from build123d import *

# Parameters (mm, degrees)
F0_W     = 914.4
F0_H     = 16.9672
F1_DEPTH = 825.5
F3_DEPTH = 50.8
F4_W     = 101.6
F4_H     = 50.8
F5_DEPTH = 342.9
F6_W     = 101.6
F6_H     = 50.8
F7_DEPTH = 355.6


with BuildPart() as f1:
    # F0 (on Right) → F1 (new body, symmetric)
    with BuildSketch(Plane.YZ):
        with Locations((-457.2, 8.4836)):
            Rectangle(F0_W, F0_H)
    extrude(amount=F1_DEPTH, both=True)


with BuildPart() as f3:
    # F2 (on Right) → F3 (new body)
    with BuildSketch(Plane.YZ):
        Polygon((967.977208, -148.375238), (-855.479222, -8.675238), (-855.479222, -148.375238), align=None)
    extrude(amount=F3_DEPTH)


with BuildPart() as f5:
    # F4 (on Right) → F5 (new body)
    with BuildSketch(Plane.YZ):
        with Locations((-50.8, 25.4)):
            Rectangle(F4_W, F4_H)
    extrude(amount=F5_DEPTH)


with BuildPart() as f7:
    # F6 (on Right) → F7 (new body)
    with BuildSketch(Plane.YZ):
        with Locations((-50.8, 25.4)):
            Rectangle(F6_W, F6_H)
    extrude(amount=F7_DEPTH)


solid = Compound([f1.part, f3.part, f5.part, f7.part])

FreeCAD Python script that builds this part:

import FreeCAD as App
import Part
import Sketcher
Q = App.Units.Quantity


def add_polygon(sketch, points):
    """Adds a closed chain of lines whose ends are joined by coincident constraints."""
    first, n = sketch.GeometryCount, len(points)
    for a, b in zip(points, points[1:] + points[:1]):
        sketch.addGeometry(Part.LineSegment(App.Vector(*a, 0), App.Vector(*b, 0)), False)
    for i in range(n):
        sketch.addConstraint(Sketcher.Constraint("Coincident", first + i, 2, first + (i + 1) % n, 1))

doc = App.newDocument("Part")
body = doc.addObject("PartDesign::Body", "Body")

# Sketch on YZ plane
sketch1 = doc.addObject("Sketcher::SketchObject", "Sketch")
body.addObject(sketch1)
sketch1.AttachmentSupport = (doc.YZ_Plane, [""])
sketch1.MapMode = "FlatFace"
add_polygon(sketch1, [(-914, 17), (-914, 0), (0, 0), (0, 17)])  # lines 0-3
sketch1.addConstraint([
    Sketcher.Constraint("Vertical", 0),
    Sketcher.Constraint("Horizontal", 1),
    Sketcher.Constraint("Vertical", 2),
    Sketcher.Constraint("Horizontal", 3),
    Sketcher.Constraint("Coincident", 1, 2, -1, 1),
    Sketcher.Constraint("DistanceX", 1, 1, 1, 2, Q("36 in")),
    Sketcher.Constraint("DistanceY", 0, 2, 0, 1, Q("0.668 in")),
])
pad1 = doc.addObject("PartDesign::Pad", "Pad")
body.addObject(pad1)
pad1.Profile = sketch1
pad1.Length = Q("65 in")
pad1.Midplane = True
body2 = doc.addObject("PartDesign::Body", "Body001")

# Sketch on YZ plane
sketch2 = doc.addObject("Sketcher::SketchObject", "Sketch001")
body2.addObject(sketch2)
sketch2.AttachmentSupport = (doc.getObject("YZ_Plane001"), [""])
sketch2.MapMode = "FlatFace"
add_polygon(sketch2, [(968, -148), (-855, -9), (-855, -148)])  # lines 0-2
sketch2.addConstraint([
    Sketcher.Constraint("Vertical", 1),
    Sketcher.Constraint("Horizontal", 2),
    Sketcher.Constraint("Distance", 0, Q("72 in")),
    Sketcher.Constraint("DistanceY", 1, 2, 1, 1, Q("5.5 in")),
    Sketcher.Constraint("DistanceX", 0, 2, -1, 1, 855.479222),
    Sketcher.Constraint("DistanceY", 1, 2, -1, 1, 148.375238),
])
pad2 = doc.addObject("PartDesign::Pad", "Pad001")
body2.addObject(pad2)
pad2.Profile = sketch2
pad2.Length = Q("2 in")
body3 = doc.addObject("PartDesign::Body", "Body002")

# Sketch on YZ plane
sketch3 = doc.addObject("Sketcher::SketchObject", "Sketch002")
body3.addObject(sketch3)
sketch3.AttachmentSupport = (doc.getObject("YZ_Plane002"), [""])
sketch3.MapMode = "FlatFace"
add_polygon(sketch3, [(-102, 51), (-102, 0), (0, 0), (0, 51)])  # lines 0-3
sketch3.addConstraint([
    Sketcher.Constraint("Vertical", 0),
    Sketcher.Constraint("Horizontal", 1),
    Sketcher.Constraint("Vertical", 2),
    Sketcher.Constraint("Horizontal", 3),
    Sketcher.Constraint("Coincident", 1, 2, -1, 1),
    Sketcher.Constraint("DistanceX", 1, 1, 1, 2, Q("4 in")),
    Sketcher.Constraint("DistanceY", 0, 2, 0, 1, Q("2 in")),
])
pad3 = doc.addObject("PartDesign::Pad", "Pad002")
body3.addObject(pad3)
pad3.Profile = sketch3
pad3.Length = Q("13.5 in")
body4 = doc.addObject("PartDesign::Body", "Body003")

# Sketch on YZ plane
sketch4 = doc.addObject("Sketcher::SketchObject", "Sketch003")
body4.addObject(sketch4)
sketch4.AttachmentSupport = (doc.getObject("YZ_Plane003"), [""])
sketch4.MapMode = "FlatFace"
add_polygon(sketch4, [(-102, 51), (-102, 0), (0, 0), (0, 51)])  # lines 0-3
sketch4.addConstraint([
    Sketcher.Constraint("Vertical", 0),
    Sketcher.Constraint("Horizontal", 1),
    Sketcher.Constraint("Vertical", 2),
    Sketcher.Constraint("Horizontal", 3),
    Sketcher.Constraint("Coincident", 1, 2, -1, 1),
    Sketcher.Constraint("DistanceX", 1, 1, 1, 2, Q("4 in")),
    Sketcher.Constraint("DistanceY", 0, 2, 0, 1, Q("2 in")),
])
pad4 = doc.addObject("PartDesign::Pad", "Pad003")
body4.addObject(pad4)
pad4.Profile = sketch4
pad4.Length = Q("14 in")

doc.recompute()
